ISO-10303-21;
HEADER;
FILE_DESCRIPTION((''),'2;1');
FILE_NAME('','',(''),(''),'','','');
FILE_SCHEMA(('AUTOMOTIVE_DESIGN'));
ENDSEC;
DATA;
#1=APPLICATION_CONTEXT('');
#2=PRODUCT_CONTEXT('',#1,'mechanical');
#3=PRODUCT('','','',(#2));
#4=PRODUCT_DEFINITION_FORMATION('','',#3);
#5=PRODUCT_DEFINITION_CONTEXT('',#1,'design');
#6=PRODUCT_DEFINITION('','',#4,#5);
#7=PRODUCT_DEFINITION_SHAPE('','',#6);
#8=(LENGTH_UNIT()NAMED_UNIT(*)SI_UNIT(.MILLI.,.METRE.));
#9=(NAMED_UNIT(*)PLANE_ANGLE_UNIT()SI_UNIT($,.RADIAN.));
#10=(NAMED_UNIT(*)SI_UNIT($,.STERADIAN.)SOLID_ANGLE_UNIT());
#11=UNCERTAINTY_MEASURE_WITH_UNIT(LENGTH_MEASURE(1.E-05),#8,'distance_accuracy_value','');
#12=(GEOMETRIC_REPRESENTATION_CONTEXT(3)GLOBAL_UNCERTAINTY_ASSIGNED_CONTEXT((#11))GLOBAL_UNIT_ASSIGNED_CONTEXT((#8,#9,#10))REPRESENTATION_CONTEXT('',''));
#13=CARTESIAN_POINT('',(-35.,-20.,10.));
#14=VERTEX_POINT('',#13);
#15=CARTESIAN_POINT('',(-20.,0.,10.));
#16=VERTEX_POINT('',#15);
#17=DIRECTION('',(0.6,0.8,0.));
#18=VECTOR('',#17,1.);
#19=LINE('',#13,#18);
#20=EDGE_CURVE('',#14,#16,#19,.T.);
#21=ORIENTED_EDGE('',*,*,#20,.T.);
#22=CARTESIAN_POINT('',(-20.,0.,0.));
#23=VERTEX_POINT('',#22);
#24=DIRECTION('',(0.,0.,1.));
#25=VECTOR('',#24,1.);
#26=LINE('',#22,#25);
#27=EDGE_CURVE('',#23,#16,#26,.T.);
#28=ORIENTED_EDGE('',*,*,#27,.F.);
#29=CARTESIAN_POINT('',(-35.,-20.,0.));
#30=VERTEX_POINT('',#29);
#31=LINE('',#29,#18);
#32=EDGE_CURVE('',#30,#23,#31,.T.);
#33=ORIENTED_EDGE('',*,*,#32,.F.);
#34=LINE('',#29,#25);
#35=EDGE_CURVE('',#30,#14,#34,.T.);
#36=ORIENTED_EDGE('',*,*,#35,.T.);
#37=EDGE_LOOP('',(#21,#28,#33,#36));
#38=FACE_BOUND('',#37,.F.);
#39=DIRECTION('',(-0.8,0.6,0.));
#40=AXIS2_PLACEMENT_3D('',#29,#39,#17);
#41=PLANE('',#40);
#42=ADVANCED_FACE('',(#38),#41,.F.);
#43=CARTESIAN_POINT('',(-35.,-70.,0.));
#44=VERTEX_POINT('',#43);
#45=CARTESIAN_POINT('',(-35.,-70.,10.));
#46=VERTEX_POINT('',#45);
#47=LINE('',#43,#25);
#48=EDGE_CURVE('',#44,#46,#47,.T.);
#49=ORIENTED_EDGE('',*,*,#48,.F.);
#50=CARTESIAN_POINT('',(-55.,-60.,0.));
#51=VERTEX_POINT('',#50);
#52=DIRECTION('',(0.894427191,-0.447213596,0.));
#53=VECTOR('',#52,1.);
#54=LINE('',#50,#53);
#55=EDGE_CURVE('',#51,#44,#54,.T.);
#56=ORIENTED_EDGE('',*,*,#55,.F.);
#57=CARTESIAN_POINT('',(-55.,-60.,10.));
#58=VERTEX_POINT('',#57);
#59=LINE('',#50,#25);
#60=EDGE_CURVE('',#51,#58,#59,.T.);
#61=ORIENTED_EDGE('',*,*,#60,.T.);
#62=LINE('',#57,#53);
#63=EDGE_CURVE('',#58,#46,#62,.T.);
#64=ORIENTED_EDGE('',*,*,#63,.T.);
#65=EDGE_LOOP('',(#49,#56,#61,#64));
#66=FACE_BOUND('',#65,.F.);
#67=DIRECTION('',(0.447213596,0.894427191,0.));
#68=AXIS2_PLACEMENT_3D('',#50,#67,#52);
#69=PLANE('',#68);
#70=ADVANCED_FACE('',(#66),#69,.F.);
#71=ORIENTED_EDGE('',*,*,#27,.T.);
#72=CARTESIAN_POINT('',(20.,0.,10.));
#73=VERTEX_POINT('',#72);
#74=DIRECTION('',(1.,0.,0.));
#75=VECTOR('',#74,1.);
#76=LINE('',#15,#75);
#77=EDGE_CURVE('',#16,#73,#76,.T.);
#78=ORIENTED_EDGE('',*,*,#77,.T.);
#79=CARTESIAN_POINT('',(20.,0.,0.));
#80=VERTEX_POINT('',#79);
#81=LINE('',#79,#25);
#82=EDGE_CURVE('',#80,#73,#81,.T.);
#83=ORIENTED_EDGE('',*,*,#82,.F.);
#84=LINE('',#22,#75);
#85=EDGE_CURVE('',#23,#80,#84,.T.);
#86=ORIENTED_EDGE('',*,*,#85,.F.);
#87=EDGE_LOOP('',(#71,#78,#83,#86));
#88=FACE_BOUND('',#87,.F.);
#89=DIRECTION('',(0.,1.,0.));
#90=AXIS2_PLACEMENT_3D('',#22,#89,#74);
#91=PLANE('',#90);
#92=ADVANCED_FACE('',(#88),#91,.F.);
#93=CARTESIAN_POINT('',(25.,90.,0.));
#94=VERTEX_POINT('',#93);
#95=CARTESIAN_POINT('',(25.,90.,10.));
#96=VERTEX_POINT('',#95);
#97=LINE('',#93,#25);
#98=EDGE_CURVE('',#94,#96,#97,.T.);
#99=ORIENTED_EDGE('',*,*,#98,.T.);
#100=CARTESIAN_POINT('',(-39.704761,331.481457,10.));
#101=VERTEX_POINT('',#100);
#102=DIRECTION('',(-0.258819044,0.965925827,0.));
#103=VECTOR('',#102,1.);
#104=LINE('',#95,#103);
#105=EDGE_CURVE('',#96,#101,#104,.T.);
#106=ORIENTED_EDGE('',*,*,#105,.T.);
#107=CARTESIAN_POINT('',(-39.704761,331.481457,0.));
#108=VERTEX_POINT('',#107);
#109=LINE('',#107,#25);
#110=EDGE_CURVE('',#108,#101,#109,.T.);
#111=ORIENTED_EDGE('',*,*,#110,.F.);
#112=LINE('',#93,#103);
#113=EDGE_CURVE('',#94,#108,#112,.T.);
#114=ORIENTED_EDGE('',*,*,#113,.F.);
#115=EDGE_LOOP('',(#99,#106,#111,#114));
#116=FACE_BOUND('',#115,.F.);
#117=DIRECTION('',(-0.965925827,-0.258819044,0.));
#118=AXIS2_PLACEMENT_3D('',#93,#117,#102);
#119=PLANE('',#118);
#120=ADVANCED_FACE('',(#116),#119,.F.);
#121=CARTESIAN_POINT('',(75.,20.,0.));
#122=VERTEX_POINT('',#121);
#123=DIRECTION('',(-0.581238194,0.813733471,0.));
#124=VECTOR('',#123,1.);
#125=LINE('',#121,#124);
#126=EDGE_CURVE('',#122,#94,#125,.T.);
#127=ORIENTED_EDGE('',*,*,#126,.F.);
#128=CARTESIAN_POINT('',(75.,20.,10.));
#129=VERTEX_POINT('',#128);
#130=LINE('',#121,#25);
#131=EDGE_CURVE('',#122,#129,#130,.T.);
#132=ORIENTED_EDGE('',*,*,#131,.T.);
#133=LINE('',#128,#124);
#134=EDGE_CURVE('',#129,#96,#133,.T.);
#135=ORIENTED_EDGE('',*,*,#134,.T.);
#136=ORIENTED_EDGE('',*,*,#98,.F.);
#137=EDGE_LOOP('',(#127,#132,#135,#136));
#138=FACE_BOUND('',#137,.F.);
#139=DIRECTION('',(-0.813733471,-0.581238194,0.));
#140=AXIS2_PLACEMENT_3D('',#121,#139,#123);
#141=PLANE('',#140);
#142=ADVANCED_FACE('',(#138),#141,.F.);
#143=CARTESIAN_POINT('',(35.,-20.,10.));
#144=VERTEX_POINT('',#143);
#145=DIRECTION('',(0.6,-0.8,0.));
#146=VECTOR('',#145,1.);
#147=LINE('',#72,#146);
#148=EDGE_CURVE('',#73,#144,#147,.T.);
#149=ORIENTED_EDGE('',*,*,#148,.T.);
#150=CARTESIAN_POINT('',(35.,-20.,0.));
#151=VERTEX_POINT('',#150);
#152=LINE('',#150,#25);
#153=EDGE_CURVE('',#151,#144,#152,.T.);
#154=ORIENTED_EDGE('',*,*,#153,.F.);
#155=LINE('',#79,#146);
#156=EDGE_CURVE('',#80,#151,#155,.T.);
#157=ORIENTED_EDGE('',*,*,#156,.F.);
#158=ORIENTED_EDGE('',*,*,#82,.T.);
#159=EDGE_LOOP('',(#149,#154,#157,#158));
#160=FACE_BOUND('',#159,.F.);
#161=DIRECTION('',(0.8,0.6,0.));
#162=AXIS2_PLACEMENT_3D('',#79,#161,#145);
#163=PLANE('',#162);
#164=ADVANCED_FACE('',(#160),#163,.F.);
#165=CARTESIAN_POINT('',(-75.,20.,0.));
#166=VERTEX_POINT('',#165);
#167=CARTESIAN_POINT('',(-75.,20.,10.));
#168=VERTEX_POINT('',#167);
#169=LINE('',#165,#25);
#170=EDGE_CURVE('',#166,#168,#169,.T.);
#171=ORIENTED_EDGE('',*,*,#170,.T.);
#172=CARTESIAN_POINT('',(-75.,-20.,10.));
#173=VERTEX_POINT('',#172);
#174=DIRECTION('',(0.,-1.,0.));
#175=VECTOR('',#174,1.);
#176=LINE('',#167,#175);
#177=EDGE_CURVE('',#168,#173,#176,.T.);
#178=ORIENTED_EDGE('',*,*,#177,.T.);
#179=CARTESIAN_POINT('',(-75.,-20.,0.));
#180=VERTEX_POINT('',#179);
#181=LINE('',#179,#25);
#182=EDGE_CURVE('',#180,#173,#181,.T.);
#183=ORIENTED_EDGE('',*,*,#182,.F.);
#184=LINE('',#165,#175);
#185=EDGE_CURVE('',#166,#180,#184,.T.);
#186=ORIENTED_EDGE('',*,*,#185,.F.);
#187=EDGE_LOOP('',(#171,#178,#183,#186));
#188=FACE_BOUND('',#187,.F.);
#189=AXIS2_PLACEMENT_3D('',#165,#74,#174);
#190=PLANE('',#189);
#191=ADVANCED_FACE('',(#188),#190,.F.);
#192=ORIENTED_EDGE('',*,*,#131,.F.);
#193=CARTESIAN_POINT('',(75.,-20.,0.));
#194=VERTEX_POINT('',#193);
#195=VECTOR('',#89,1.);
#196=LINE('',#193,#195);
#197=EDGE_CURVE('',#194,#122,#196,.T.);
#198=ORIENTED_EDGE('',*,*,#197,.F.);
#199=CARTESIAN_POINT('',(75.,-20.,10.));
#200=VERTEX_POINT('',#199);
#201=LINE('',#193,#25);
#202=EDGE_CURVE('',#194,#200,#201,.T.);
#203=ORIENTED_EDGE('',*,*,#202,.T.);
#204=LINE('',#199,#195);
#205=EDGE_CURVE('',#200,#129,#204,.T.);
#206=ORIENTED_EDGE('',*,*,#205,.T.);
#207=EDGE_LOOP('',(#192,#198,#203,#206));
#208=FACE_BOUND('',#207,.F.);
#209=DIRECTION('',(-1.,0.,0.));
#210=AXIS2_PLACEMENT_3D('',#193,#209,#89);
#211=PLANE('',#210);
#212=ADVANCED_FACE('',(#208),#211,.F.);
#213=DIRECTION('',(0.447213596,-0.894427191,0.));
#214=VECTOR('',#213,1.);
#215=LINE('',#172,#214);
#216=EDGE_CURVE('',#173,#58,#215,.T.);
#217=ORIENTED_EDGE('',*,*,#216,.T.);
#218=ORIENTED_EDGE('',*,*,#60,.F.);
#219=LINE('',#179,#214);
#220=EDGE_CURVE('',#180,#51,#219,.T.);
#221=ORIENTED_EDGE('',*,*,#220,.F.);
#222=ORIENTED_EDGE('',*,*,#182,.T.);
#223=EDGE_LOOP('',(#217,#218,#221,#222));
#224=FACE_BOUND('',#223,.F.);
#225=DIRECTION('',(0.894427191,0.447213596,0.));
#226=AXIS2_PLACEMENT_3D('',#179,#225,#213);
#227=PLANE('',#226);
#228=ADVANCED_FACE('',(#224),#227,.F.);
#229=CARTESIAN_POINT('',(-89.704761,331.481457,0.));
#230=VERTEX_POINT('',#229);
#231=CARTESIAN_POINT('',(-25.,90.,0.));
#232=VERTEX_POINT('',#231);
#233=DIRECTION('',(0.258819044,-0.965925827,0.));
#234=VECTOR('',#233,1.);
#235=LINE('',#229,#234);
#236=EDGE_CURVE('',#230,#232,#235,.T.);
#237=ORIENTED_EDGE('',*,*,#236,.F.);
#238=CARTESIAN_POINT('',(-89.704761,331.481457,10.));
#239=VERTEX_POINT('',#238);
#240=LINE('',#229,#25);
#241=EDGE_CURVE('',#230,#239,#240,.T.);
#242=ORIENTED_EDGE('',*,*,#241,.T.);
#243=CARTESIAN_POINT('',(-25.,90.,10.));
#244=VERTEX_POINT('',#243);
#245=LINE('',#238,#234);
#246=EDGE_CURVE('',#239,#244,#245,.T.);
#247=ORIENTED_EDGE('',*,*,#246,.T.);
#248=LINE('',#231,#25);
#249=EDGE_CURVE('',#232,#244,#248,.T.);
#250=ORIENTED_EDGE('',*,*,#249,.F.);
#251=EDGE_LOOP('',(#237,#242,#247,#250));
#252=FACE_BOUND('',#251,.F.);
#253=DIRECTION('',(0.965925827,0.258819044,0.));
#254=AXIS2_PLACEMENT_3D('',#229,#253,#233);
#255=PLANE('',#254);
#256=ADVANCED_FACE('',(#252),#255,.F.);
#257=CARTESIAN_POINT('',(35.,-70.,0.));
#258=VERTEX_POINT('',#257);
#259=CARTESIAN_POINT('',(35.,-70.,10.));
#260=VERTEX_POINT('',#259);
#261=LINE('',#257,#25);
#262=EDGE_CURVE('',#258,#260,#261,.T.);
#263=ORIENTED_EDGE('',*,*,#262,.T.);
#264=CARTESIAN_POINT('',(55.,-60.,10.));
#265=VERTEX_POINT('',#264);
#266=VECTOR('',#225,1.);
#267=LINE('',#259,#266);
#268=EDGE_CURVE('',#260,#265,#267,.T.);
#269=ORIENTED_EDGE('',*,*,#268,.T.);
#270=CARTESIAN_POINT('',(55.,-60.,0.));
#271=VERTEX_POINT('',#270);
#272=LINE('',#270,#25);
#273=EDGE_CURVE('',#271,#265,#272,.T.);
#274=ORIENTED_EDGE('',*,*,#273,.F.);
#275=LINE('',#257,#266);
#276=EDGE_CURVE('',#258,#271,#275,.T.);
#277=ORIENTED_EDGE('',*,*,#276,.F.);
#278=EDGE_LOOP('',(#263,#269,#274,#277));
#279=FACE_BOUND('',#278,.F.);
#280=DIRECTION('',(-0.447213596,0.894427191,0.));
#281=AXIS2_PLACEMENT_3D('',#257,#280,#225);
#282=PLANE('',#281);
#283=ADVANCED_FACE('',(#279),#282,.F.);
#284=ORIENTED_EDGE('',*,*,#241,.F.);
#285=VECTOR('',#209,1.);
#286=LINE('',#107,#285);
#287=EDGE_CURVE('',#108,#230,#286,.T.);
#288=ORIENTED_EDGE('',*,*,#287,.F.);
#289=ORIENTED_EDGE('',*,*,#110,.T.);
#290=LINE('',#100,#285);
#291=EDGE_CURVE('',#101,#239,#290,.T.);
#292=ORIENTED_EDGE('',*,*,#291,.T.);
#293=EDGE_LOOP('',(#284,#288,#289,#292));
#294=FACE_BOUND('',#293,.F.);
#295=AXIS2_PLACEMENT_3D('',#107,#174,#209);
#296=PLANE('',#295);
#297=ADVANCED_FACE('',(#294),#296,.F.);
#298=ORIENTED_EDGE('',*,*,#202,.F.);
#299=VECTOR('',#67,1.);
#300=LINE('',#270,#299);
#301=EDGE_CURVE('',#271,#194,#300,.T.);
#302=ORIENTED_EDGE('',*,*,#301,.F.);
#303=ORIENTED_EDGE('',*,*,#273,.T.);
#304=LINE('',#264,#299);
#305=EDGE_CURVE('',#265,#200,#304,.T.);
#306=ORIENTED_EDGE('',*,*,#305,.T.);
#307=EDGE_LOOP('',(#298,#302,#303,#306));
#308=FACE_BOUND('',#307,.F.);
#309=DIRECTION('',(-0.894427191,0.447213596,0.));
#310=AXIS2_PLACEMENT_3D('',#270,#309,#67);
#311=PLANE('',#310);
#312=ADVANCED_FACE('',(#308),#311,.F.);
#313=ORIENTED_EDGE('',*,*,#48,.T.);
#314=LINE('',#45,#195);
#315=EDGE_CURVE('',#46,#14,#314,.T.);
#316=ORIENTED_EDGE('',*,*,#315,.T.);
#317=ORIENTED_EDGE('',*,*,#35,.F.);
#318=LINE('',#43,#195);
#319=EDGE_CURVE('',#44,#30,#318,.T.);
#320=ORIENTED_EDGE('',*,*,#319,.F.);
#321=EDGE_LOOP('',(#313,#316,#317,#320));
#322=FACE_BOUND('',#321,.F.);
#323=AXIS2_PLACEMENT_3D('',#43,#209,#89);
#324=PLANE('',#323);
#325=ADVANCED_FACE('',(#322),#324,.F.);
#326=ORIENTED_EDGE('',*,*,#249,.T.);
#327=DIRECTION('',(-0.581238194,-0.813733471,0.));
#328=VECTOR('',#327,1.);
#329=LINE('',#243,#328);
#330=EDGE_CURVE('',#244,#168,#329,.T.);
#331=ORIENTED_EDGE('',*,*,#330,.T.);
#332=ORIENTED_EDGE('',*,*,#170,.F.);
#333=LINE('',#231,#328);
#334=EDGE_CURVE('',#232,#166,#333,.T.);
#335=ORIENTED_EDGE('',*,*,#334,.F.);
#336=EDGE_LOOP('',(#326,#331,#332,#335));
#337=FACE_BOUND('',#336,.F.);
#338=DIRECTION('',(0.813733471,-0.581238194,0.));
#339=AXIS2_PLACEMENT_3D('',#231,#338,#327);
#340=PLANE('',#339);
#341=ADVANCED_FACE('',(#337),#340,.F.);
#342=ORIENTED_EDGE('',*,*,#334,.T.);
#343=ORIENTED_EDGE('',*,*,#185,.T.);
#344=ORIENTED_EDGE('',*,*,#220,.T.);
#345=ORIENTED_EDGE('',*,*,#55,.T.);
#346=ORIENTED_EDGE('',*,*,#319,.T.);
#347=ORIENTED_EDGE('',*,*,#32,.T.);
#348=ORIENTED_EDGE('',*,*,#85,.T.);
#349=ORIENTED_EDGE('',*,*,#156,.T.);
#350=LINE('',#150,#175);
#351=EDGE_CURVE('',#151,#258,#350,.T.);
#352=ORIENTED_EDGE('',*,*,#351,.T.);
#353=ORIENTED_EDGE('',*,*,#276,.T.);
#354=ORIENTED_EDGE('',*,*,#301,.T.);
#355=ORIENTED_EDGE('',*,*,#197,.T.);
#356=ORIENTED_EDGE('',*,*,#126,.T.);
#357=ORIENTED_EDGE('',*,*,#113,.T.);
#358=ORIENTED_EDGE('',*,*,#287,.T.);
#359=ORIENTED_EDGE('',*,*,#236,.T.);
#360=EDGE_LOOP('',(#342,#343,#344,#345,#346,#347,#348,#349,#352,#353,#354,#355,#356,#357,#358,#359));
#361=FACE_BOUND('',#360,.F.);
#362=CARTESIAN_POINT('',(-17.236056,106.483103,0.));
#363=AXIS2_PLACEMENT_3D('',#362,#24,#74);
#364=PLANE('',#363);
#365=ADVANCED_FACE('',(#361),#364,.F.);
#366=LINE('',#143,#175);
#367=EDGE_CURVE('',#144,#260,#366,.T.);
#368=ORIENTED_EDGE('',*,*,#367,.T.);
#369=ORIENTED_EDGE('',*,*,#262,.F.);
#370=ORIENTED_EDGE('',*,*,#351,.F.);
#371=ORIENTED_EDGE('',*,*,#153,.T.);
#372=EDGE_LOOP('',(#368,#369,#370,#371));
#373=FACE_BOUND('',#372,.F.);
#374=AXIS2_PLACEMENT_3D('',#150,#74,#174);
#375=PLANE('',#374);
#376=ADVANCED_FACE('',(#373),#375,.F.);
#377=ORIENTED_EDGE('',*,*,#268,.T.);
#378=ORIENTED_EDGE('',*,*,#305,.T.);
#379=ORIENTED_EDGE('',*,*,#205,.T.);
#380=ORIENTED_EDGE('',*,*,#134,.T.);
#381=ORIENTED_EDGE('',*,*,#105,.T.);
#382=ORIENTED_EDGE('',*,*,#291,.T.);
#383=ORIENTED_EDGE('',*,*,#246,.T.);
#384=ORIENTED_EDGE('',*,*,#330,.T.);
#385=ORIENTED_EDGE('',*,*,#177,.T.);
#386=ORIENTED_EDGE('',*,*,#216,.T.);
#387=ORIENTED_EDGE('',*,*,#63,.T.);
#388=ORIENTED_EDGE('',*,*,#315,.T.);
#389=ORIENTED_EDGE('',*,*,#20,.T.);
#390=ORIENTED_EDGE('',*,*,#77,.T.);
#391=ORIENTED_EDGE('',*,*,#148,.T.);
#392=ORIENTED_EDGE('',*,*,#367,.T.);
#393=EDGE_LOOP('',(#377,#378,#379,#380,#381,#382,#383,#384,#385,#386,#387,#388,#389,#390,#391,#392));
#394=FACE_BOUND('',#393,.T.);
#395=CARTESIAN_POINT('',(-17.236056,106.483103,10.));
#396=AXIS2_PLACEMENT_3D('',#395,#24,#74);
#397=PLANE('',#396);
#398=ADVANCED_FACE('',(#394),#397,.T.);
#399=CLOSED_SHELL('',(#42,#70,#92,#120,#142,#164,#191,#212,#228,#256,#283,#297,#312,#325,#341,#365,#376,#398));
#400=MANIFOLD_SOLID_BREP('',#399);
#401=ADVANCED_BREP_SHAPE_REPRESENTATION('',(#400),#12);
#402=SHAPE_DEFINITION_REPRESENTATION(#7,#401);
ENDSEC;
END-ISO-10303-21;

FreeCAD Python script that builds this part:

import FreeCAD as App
import Part
import Sketcher
Q = App.Units.Quantity

doc = App.newDocument("Part")
body = doc.addObject("PartDesign::Body", "Body")

# Sketch on XY plane
sketch1 = body.newObject("Sketcher::SketchObject", "Sketch")
sketch1.AttachmentSupport = (doc.getObject("XY_Plane"), [""])
sketch1.MapMode = "FlatFace"
sketch1.addGeometry([
    Part.LineSegment(App.Vector(-35, -20, 0), App.Vector(-20, 0, 0)),  # 0
    Part.LineSegment(App.Vector(-20, 0, 0), App.Vector(20, 0, 0)),  # 1
    Part.LineSegment(App.Vector(20, 0, 0), App.Vector(35, -20, 0)),  # 2
    Part.LineSegment(App.Vector(35, -20, 0), App.Vector(35, -70, 0)),  # 3
    Part.LineSegment(App.Vector(35, -70, 0), App.Vector(55, -60, 0)),  # 4
    Part.LineSegment(App.Vector(55, -60, 0), App.Vector(75, -20, 0)),  # 5
    Part.LineSegment(App.Vector(75, -20, 0), App.Vector(75, 20, 0)),  # 6
    Part.LineSegment(App.Vector(75, 20, 0), App.Vector(25, 90, 0)),  # 7
    Part.LineSegment(App.Vector(25, 90, 0), App.Vector(-40, 331, 0)),  # 8
    Part.LineSegment(App.Vector(-40, 331, 0), App.Vector(-90, 331, 0)),  # 9
    Part.LineSegment(App.Vector(-90, 331, 0), App.Vector(-25, 90, 0)),  # 10
    Part.LineSegment(App.Vector(-25, 90, 0), App.Vector(-75, 20, 0)),  # 11
    Part.LineSegment(App.Vector(-75, 20, 0), App.Vector(-75, -20, 0)),  # 12
    Part.LineSegment(App.Vector(-75, -20, 0), App.Vector(-55, -60, 0)),  # 13
    Part.LineSegment(App.Vector(-55, -60, 0), App.Vector(-35, -70, 0)),  # 14
    Part.LineSegment(App.Vector(-35, -70, 0), App.Vector(-35, -20, 0)),  # 15
], False)
sketch1.addConstraint([
    Sketcher.Constraint("Coincident", 0, 2, 1, 1),
    Sketcher.Constraint("Coincident", 1, 2, 2, 1),
    Sketcher.Constraint("Coincident", 2, 2, 3, 1),
    Sketcher.Constraint("Coincident", 3, 2, 4, 1),
    Sketcher.Constraint("Coincident", 4, 2, 5, 1),
    Sketcher.Constraint("Coincident", 5, 2, 6, 1),
    Sketcher.Constraint("Coincident", 6, 2, 7, 1),
    Sketcher.Constraint("Coincident", 7, 2, 8, 1),
    Sketcher.Constraint("Coincident", 8, 2, 9, 1),
    Sketcher.Constraint("Coincident", 9, 2, 10, 1),
    Sketcher.Constraint("Coincident", 10, 2, 11, 1),
    Sketcher.Constraint("Coincident", 11, 2, 12, 1),
    Sketcher.Constraint("Coincident", 12, 2, 13, 1),
    Sketcher.Constraint("Coincident", 13, 2, 14, 1),
    Sketcher.Constraint("Coincident", 14, 2, 15, 1),
    Sketcher.Constraint("Coincident", 15, 2, 0, 1),
    Sketcher.Constraint("Horizontal", 1),
    Sketcher.Constraint("Vertical", 3),
    Sketcher.Constraint("Vertical", 6),
    Sketcher.Constraint("Horizontal", 9),
    Sketcher.Constraint("Vertical", 12),
    Sketcher.Constraint("Vertical", 15),
    Sketcher.Constraint("Symmetric", 0, 2, 1, 2, -1, 1),
    Sketcher.Constraint("Symmetric", 5, 2, 11, 2, -1, 1),
    Sketcher.Constraint("Symmetric", 7, 2, 10, 2, -2),
    Sketcher.Constraint("Symmetric", 4, 2, 13, 2, -2),
    Sketcher.Constraint("Symmetric", 3, 2, 14, 2, -2),
    Sketcher.Constraint("Parallel", 8, 10),
    Sketcher.Constraint("Perpendicular", 4, 13),
    Sketcher.Constraint("Perpendicular", 5, 14),
    Sketcher.Constraint("Horizontal", 2, 2, 5, 2),
    Sketcher.Constraint("Horizontal", 6, 2, 11, 2),
    Sketcher.Constraint("Horizontal", 12, 2, 15, 2),
    Sketcher.Constraint("Equal", 9, 3),
    Sketcher.Constraint("Equal", 1, 6),
    Sketcher.Constraint("DistanceX", 1, 1, 1, 2, 40.0),
    Sketcher.Constraint("DistanceX", 9, 2, 9, 1, 50.0),
    Sketcher.Constraint("Angle", 8, Q("105 deg")),
    Sketcher.Constraint("Distance", 0, 25.0),
    Sketcher.Constraint("Distance", 8, 250.0),
    Sketcher.Constraint("DistanceX", -1, 1, 4, 2, 55.0),
    Sketcher.Constraint("DistanceY", 4, 2, -1, 1, 60.0),
    Sketcher.Constraint("DistanceY", -1, 1, 7, 2, 90.0),
])
pad1 = body.newObject("PartDesign::Pad", "Pad")
pad1.Profile = sketch1
pad1.Length = 10

doc.recompute()
